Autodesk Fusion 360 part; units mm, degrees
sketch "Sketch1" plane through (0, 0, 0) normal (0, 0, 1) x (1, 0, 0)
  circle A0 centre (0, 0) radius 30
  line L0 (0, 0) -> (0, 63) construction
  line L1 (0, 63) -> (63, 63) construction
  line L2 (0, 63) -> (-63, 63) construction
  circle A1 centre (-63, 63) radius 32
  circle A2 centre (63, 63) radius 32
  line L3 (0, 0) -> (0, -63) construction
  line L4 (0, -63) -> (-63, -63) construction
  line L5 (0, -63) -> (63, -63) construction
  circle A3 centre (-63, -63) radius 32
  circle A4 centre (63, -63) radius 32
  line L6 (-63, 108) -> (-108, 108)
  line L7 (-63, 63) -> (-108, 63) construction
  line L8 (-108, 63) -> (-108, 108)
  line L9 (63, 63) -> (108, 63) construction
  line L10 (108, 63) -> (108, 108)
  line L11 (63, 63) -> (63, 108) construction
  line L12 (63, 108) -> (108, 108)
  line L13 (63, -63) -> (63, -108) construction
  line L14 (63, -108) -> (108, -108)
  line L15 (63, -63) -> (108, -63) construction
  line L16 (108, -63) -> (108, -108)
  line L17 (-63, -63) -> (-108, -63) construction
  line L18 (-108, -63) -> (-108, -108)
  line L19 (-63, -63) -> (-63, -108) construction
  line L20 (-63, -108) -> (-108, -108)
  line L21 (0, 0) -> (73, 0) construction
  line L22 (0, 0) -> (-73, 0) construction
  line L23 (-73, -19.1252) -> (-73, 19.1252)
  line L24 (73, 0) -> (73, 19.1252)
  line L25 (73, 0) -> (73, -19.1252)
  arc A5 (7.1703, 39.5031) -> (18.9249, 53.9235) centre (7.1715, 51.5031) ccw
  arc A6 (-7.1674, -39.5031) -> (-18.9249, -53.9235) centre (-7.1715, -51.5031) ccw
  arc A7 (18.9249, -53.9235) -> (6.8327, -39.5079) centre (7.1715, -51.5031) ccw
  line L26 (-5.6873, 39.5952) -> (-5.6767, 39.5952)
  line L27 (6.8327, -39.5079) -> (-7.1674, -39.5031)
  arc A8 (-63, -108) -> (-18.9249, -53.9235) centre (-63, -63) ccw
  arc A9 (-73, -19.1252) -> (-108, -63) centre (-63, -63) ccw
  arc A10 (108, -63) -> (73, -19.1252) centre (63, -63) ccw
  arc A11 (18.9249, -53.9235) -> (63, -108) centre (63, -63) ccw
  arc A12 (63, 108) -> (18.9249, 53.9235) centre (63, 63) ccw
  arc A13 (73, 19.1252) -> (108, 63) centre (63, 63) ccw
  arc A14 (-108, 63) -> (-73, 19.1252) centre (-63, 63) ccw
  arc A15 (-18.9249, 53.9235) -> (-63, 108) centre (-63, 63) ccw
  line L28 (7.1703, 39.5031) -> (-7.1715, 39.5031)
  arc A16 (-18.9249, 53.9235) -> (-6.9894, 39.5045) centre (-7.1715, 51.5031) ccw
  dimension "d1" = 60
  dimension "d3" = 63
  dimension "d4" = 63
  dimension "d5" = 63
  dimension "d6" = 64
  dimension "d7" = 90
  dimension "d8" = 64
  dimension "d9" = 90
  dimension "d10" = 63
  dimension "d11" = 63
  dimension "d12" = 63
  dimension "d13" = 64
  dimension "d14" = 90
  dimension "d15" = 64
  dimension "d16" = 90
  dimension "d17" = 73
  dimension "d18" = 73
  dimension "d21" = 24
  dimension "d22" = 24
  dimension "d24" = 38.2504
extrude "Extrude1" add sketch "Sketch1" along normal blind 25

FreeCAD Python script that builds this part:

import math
import FreeCAD as App
import Part
import Sketcher
Q = App.Units.Quantity

doc = App.newDocument("Part")
body = doc.addObject("PartDesign::Body", "Body")

# Sketch on XY plane
sketch1 = doc.addObject("Sketcher::SketchObject", "Sketch")
body.addObject(sketch1)
sketch1.AttachmentSupport = (doc.XY_Plane, [""])
sketch1.MapMode = "FlatFace"
sketch1.addGeometry([
    Part.ArcOfCircle(Part.Circle(App.Vector(-63, 63, 0), App.Vector(0, 0, 1), 45), math.radians(-12), math.radians(90)),  # 0
    Part.LineSegment(App.Vector(-63, 108, 0), App.Vector(-108, 108, 0)),  # 1
    Part.LineSegment(App.Vector(-108, 108, 0), App.Vector(-108, 63, 0)),  # 2
    Part.ArcOfCircle(Part.Circle(App.Vector(-63, 63, 0), App.Vector(0, 0, 1), 45), math.radians(180), math.radians(257)),  # 3
    Part.LineSegment(App.Vector(-73, 19, 0), App.Vector(-73, -19, 0)),  # 4
    Part.ArcOfCircle(Part.Circle(App.Vector(-63, -63, 0), App.Vector(0, 0, 1), 45), math.radians(103), math.radians(180)),  # 5
    Part.LineSegment(App.Vector(-108, -63, 0), App.Vector(-108, -108, 0)),  # 6
    Part.LineSegment(App.Vector(-108, -108, 0), App.Vector(-63, -108, 0)),  # 7
    Part.ArcOfCircle(Part.Circle(App.Vector(-63, -63, 0), App.Vector(0, 0, 1), 45), math.radians(-90), math.radians(12)),  # 8
    Part.ArcOfCircle(Part.Circle(App.Vector(-7, -52, 0), App.Vector(0, 0, 1), 12), math.radians(90), math.radians(192)),  # 9
    Part.LineSegment(App.Vector(-7, -40, 0), App.Vector(7, -40, 0)),  # 10
    Part.ArcOfCircle(Part.Circle(App.Vector(7, -52, 0), App.Vector(0, 0, 1), 12), math.radians(-12), math.radians(92)),  # 11
    Part.ArcOfCircle(Part.Circle(App.Vector(63, -63, 0), App.Vector(0, 0, 1), 45), math.radians(168), math.radians(270)),  # 12
    Part.LineSegment(App.Vector(63, -108, 0), App.Vector(108, -108, 0)),  # 13
    Part.LineSegment(App.Vector(108, -108, 0), App.Vector(108, -63, 0)),  # 14
    Part.ArcOfCircle(Part.Circle(App.Vector(63, -63, 0), App.Vector(0, 0, 1), 45), math.radians(0), math.radians(77)),  # 15
    Part.LineSegment(App.Vector(73, -19, 0), App.Vector(73, 19, 0)),  # 16
    Part.ArcOfCircle(Part.Circle(App.Vector(63, 63, 0), App.Vector(0, 0, 1), 45), math.radians(-77), math.radians(0)),  # 17
    Part.LineSegment(App.Vector(108, 63, 0), App.Vector(108, 108, 0)),  # 18
    Part.LineSegment(App.Vector(108, 108, 0), App.Vector(63, 108, 0)),  # 19
    Part.ArcOfCircle(Part.Circle(App.Vector(63, 63, 0), App.Vector(0, 0, 1), 45), math.radians(90), math.radians(192)),  # 20
    Part.ArcOfCircle(Part.Circle(App.Vector(7, 52, 0), App.Vector(0, 0, 1), 12), math.radians(-90), math.radians(12)),  # 21
    Part.LineSegment(App.Vector(7, 40, 0), App.Vector(-7, 40, 0)),  # 22
    Part.ArcOfCircle(Part.Circle(App.Vector(-7, 52, 0), App.Vector(0, 0, 1), 12), math.radians(168), math.radians(270)),  # 23
    Part.Circle(App.Vector(-63, -63, 0), App.Vector(0, 0, 1), 32),  # 24
    Part.Circle(App.Vector(63, -63, 0), App.Vector(0, 0, 1), 32),  # 25
    Part.Circle(App.Vector(-63, 63, 0), App.Vector(0, 0, 1), 32),  # 26
    Part.Circle(App.Vector(0, 0, 0), App.Vector(0, 0, 1), 30),  # 27
    Part.Circle(App.Vector(63, 63, 0), App.Vector(0, 0, 1), 32),  # 28
], False)
sketch1.addConstraint([
    Sketcher.Constraint("Tangent", 0, 2, 1, 1),
    Sketcher.Constraint("Coincident", 1, 2, 2, 1),
    Sketcher.Constraint("Tangent", 2, 2, 3, 1),
    Sketcher.Constraint("Coincident", 3, 2, 4, 1),
    Sketcher.Constraint("Coincident", 4, 2, 5, 1),
    Sketcher.Constraint("Tangent", 5, 2, 6, 1),
    Sketcher.Constraint("Coincident", 6, 2, 7, 1),
    Sketcher.Constraint("Tangent", 7, 2, 8, 1),
    Sketcher.Constraint("Tangent", 8, 2, 9, 2),
    Sketcher.Constraint("Tangent", 9, 1, 10, 1),
    Sketcher.Constraint("Coincident", 10, 2, 11, 2),
    Sketcher.Constraint("Tangent", 11, 1, 12, 1),
    Sketcher.Constraint("Tangent", 12, 2, 13, 1),
    Sketcher.Constraint("Coincident", 13, 2, 14, 1),
    Sketcher.Constraint("Tangent", 14, 2, 15, 1),
    Sketcher.Constraint("Coincident", 15, 2, 16, 1),
    Sketcher.Constraint("Coincident", 16, 2, 17, 1),
    Sketcher.Constraint("Tangent", 17, 2, 18, 1),
    Sketcher.Constraint("Coincident", 18, 2, 19, 1),
    Sketcher.Constraint("Tangent", 19, 2, 20, 1),
    Sketcher.Constraint("Tangent", 20, 2, 21, 2),
    Sketcher.Constraint("Tangent", 21, 1, 22, 1),
    Sketcher.Constraint("Tangent", 22, 2, 23, 2),
    Sketcher.Constraint("Tangent", 23, 1, 0, 1),
    Sketcher.Constraint("Horizontal", 1),
    Sketcher.Constraint("Vertical", 2),
    Sketcher.Constraint("Vertical", 4),
    Sketcher.Constraint("Vertical", 6),
    Sketcher.Constraint("Horizontal", 7),
    Sketcher.Constraint("Horizontal", 13),
    Sketcher.Constraint("Vertical", 14),
    Sketcher.Constraint("Vertical", 16),
    Sketcher.Constraint("Vertical", 18),
    Sketcher.Constraint("Horizontal", 19),
    Sketcher.Constraint("Horizontal", 22),
    Sketcher.Constraint("Coincident", 27, 3, -1, 1),
    Sketcher.Constraint("Coincident", 3, 3, 0, 3),
    Sketcher.Constraint("Coincident", 8, 3, 5, 3),
    Sketcher.Constraint("Coincident", 15, 3, 12, 3),
    Sketcher.Constraint("Coincident", 20, 3, 17, 3),
    Sketcher.Constraint("Coincident", 24, 3, 5, 3),
    Sketcher.Constraint("Coincident", 25, 3, 12, 3),
    Sketcher.Constraint("Coincident", 26, 3, 0, 3),
    Sketcher.Constraint("Coincident", 28, 3, 17, 3),
    Sketcher.Constraint("Equal", 0, 3),
    Sketcher.Constraint("Equal", 3, 5),
    Sketcher.Constraint("Equal", 5, 8),
    Sketcher.Constraint("Equal", 9, 11),
    Sketcher.Constraint("Equal", 8, 12),
    Sketcher.Constraint("Equal", 12, 15),
    Sketcher.Constraint("Equal", 15, 17),
    Sketcher.Constraint("Equal", 17, 20),
    Sketcher.Constraint("Equal", 11, 21),
    Sketcher.Constraint("Equal", 21, 23),
    Sketcher.Constraint("Equal", 24, 25),
    Sketcher.Constraint("Equal", 25, 26),
    Sketcher.Constraint("Equal", 26, 28),
    Sketcher.Constraint("Symmetric", 0, 3, 12, 3, -1, 1),
    Sketcher.Constraint("Symmetric", 5, 3, 17, 3, -1, 1),
    Sketcher.Constraint("Symmetric", 9, 3, 11, 3, -2),
    Sketcher.Constraint("Symmetric", 4, 2, 15, 2, -2),
    Sketcher.Constraint("Vertical", 11, 3, 21, 3),
    Sketcher.Constraint("Diameter", 24, Q("64 mm")),
    Sketcher.Constraint("Diameter", 27, Q("60 mm")),
    Sketcher.Constraint("Radius", 0, Q("45 mm")),
    Sketcher.Constraint("Radius", 9, Q("12 mm")),
    Sketcher.Constraint("DistanceX", 0, 3, -1, 1, Q("63 mm")),
    Sketcher.Constraint("DistanceY", -1, 1, 0, 3, Q("63 mm")),
    Sketcher.Constraint("DistanceX", 3, 2, -1, 1, Q("73 mm")),
    Sketcher.Constraint("Distance", 10, Q("14 mm")),
    Sketcher.Constraint("Angle", 10, Q("-0.0196 deg")),
])
pad1 = doc.addObject("PartDesign::Pad", "Pad")
body.addObject(pad1)
pad1.Profile = sketch1
pad1.Length = 25

doc.recompute()
